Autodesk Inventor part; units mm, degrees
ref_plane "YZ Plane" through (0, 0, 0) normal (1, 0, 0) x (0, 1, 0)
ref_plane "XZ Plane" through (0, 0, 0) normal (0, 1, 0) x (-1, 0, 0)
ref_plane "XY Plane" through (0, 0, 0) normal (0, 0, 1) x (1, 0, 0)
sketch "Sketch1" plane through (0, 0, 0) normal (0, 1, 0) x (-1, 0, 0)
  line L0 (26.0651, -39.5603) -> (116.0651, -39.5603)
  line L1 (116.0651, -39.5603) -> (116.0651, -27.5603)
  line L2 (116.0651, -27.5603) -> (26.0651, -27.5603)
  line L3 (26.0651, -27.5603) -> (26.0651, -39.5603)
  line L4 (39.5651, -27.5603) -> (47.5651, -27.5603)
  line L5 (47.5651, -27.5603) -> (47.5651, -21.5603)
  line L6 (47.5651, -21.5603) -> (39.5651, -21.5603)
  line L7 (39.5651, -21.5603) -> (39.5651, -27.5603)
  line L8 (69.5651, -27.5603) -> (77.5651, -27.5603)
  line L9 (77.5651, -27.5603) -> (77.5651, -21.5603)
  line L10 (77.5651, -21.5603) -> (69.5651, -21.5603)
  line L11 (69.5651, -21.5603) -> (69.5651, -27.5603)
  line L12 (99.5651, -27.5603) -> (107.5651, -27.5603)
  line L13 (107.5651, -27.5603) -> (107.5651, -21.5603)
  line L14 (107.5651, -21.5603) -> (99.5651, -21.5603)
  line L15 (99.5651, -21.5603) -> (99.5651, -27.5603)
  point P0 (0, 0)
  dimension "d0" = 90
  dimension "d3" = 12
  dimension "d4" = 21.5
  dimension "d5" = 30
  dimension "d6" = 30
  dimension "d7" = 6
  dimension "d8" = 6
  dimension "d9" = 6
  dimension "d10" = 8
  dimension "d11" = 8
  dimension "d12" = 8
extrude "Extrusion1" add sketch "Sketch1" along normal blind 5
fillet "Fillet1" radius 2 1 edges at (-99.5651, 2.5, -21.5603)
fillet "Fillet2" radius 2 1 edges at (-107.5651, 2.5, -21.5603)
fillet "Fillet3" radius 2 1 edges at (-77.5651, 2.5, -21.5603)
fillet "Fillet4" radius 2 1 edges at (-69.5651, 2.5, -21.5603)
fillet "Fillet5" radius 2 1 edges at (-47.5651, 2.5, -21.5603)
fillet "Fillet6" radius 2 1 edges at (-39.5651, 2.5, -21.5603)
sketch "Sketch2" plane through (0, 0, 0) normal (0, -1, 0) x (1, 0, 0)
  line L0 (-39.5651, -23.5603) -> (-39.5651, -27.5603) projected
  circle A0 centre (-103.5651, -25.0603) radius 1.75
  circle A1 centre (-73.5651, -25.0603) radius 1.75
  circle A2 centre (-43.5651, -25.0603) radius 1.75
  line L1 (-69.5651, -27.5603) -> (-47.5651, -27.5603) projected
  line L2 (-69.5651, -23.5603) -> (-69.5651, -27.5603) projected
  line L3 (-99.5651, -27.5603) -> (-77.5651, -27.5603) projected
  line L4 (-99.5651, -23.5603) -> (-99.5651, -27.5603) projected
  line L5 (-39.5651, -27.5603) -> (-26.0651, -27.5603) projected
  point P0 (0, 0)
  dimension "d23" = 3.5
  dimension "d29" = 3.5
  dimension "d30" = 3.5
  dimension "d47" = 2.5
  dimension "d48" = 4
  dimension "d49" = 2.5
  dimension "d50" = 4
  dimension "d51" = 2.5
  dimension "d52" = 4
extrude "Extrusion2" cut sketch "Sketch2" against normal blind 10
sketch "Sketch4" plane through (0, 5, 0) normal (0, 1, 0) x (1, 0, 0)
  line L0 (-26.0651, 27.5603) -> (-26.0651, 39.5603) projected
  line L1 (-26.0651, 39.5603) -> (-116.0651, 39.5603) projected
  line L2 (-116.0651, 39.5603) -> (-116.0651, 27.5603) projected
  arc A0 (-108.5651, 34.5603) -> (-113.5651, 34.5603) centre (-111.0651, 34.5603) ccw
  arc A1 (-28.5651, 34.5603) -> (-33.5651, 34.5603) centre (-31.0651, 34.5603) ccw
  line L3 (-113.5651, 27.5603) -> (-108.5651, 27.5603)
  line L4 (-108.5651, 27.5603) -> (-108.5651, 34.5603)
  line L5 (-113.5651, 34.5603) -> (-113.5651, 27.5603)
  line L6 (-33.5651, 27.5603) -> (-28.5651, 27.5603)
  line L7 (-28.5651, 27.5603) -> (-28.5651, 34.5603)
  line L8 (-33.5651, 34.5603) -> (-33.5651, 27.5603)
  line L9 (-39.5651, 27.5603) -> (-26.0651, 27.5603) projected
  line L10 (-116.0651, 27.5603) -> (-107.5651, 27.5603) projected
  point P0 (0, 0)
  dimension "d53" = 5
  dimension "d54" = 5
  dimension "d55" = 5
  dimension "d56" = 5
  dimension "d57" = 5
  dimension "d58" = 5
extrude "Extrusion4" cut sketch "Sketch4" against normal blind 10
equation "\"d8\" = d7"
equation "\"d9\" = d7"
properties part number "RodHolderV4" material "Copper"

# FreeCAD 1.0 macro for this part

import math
import FreeCAD as App
import Part
import Sketcher


def edges_at(feature, points):
    """Names of the edges that pass closest to the given points."""
    edges = feature.Shape.Edges
    near = lambda p: min(range(len(edges)), key=lambda i: edges[i].distToShape(Part.Vertex(*p))[0])
    return sorted({f"Edge{near(p) + 1}" for p in points})

doc = App.newDocument("Part")
body = doc.addObject("PartDesign::Body", "Body")

sketch1 = body.newObject("Sketcher::SketchObject", "Sketch")
sketch1.AttachmentSupport = (doc.getObject("XZ_Plane"), [""])
sketch1.MapMode = "FlatFace"
sketch1.addGeometry([
    Part.LineSegment(App.Vector(-26.0651, -27.5603, 0), App.Vector(-26.0651, -39.5603, 0)),
    Part.LineSegment(App.Vector(-26.0651, -39.5603, 0), App.Vector(-116.0651, -39.5603, 0)),
    Part.LineSegment(App.Vector(-116.0651, -39.5603, 0), App.Vector(-116.0651, -27.5603, 0)),
    Part.LineSegment(App.Vector(-116.0651, -27.5603, 0), App.Vector(-107.5651, -27.5603, 0)),
    Part.LineSegment(App.Vector(-107.5651, -27.5603, 0), App.Vector(-107.5651, -21.5603, 0)),
    Part.LineSegment(App.Vector(-107.5651, -21.5603, 0), App.Vector(-99.5651, -21.5603, 0)),
    Part.LineSegment(App.Vector(-99.5651, -21.5603, 0), App.Vector(-99.5651, -27.5603, 0)),
    Part.LineSegment(App.Vector(-99.5651, -27.5603, 0), App.Vector(-77.5651, -27.5603, 0)),
    Part.LineSegment(App.Vector(-77.5651, -27.5603, 0), App.Vector(-77.5651, -21.5603, 0)),
    Part.LineSegment(App.Vector(-77.5651, -21.5603, 0), App.Vector(-69.5651, -21.5603, 0)),
    Part.LineSegment(App.Vector(-69.5651, -21.5603, 0), App.Vector(-69.5651, -27.5603, 0)),
    Part.LineSegment(App.Vector(-69.5651, -27.5603, 0), App.Vector(-47.5651, -27.5603, 0)),
    Part.LineSegment(App.Vector(-47.5651, -27.5603, 0), App.Vector(-47.5651, -21.5603, 0)),
    Part.LineSegment(App.Vector(-47.5651, -21.5603, 0), App.Vector(-39.5651, -21.5603, 0)),
    Part.LineSegment(App.Vector(-39.5651, -21.5603, 0), App.Vector(-39.5651, -27.5603, 0)),
    Part.LineSegment(App.Vector(-39.5651, -27.5603, 0), App.Vector(-26.0651, -27.5603, 0)),
], False)
sketch1.addConstraint([
    Sketcher.Constraint("Coincident", 0, 2, 1, 1),
    Sketcher.Constraint("Coincident", 1, 2, 2, 1),
    Sketcher.Constraint("Coincident", 2, 2, 3, 1),
    Sketcher.Constraint("Coincident", 3, 2, 4, 1),
    Sketcher.Constraint("Coincident", 4, 2, 5, 1),
    Sketcher.Constraint("Coincident", 5, 2, 6, 1),
    Sketcher.Constraint("Coincident", 6, 2, 7, 1),
    Sketcher.Constraint("Coincident", 7, 2, 8, 1),
    Sketcher.Constraint("Coincident", 8, 2, 9, 1),
    Sketcher.Constraint("Coincident", 9, 2, 10, 1),
    Sketcher.Constraint("Coincident", 10, 2, 11, 1),
    Sketcher.Constraint("Coincident", 11, 2, 12, 1),
    Sketcher.Constraint("Coincident", 12, 2, 13, 1),
    Sketcher.Constraint("Coincident", 13, 2, 14, 1),
    Sketcher.Constraint("Coincident", 14, 2, 15, 1),
    Sketcher.Constraint("Coincident", 15, 2, 0, 1),
    Sketcher.Constraint("Vertical", 0),
    Sketcher.Constraint("Horizontal", 1),
    Sketcher.Constraint("Vertical", 2),
    Sketcher.Constraint("Horizontal", 3),
    Sketcher.Constraint("Vertical", 4),
    Sketcher.Constraint("Horizontal", 5),
    Sketcher.Constraint("Vertical", 6),
    Sketcher.Constraint("Horizontal", 7),
    Sketcher.Constraint("Vertical", 8),
    Sketcher.Constraint("Horizontal", 9),
    Sketcher.Constraint("Vertical", 10),
    Sketcher.Constraint("Horizontal", 11),
    Sketcher.Constraint("Vertical", 12),
    Sketcher.Constraint("Horizontal", 13),
    Sketcher.Constraint("Vertical", 14),
    Sketcher.Constraint("Horizontal", 15),
    Sketcher.Constraint("Horizontal", 3, 2, 6, 2),
    Sketcher.Constraint("Horizontal", 5, 2, 8, 2),
    Sketcher.Constraint("Horizontal", 7, 2, 10, 2),
    Sketcher.Constraint("Horizontal", 9, 2, 12, 2),
    Sketcher.Constraint("Horizontal", 11, 2, 14, 2),
    Sketcher.Constraint("Equal", 5, 9),
    Sketcher.Constraint("Equal", 7, 11),
    Sketcher.Constraint("Equal", 9, 13),
    Sketcher.Constraint("DistanceX", 1, 2, 1, 1, 90.0),
    Sketcher.Constraint("DistanceX", 5, 1, 5, 2, 8.0),
    Sketcher.Constraint("DistanceY", 0, 2, 0, 1, 12.0),
    Sketcher.Constraint("DistanceY", 4, 1, 4, 2, 6.0),
    Sketcher.Constraint("DistanceX", 3, 2, 7, 2, 30.0),
    Sketcher.Constraint("DistanceX", 11, 2, 0, 2, 21.5),
    Sketcher.Constraint("DistanceX", 0, 2, -1, 1, 26.065),
    Sketcher.Constraint("DistanceY", 0, 2, -1, 1, 39.5603),
])
pad1 = body.newObject("PartDesign::Pad", "Pad")
pad1.Profile = sketch1
pad1.Length = 5
pad1.Reversed = True
doc.recompute()

fillet = body.newObject("PartDesign::Fillet", "Fillet")
fillet.Base = (pad1, edges_at(pad1, [(-99.565, 2.5, -21.56)]))
fillet.Radius = 2
doc.recompute()

fillet2 = body.newObject("PartDesign::Fillet", "Fillet001")
fillet2.Base = (fillet, edges_at(fillet, [(-107.565, 2.5, -21.56)]))
fillet2.Radius = 2
doc.recompute()

fillet3 = body.newObject("PartDesign::Fillet", "Fillet002")
fillet3.Base = (fillet2, edges_at(fillet2, [(-77.565, 2.5, -21.56)]))
fillet3.Radius = 2
doc.recompute()

fillet4 = body.newObject("PartDesign::Fillet", "Fillet003")
fillet4.Base = (fillet3, edges_at(fillet3, [(-69.565, 2.5, -21.56)]))
fillet4.Radius = 2
doc.recompute()

fillet5 = body.newObject("PartDesign::Fillet", "Fillet004")
fillet5.Base = (fillet4, edges_at(fillet4, [(-47.565, 2.5, -21.56)]))
fillet5.Radius = 2
doc.recompute()

fillet6 = body.newObject("PartDesign::Fillet", "Fillet005")
fillet6.Base = (fillet5, edges_at(fillet5, [(-39.565, 2.5, -21.56)]))
fillet6.Radius = 2

sketch2 = body.newObject("Sketcher::SketchObject", "Sketch001")
sketch2.AttachmentSupport = (doc.getObject("XZ_Plane"), [""])
sketch2.MapMode = "FlatFace"
sketch2.addGeometry([
    Part.Circle(App.Vector(-103.5651, -25.0603, 0), App.Vector(0, 0, 1), 1.75),
    Part.Circle(App.Vector(-73.5651, -25.0603, 0), App.Vector(0, 0, 1), 1.75),
    Part.Circle(App.Vector(-43.5651, -25.0603, 0), App.Vector(0, 0, 1), 1.75),
], False)
sketch2.addConstraint([
    Sketcher.Constraint("Equal", 0, 1),
    Sketcher.Constraint("Equal", 1, 2),
    Sketcher.Constraint("Horizontal", 0, 3, 1, 3),
    Sketcher.Constraint("Horizontal", 1, 3, 2, 3),
    Sketcher.Constraint("Diameter", 0, 3.5),
    Sketcher.Constraint("DistanceX", 0, 3, 1, 3, 30.0),
    Sketcher.Constraint("DistanceX", 1, 3, 2, 3, 30.0),
    Sketcher.Constraint("DistanceX", 0, 3, -1, 1, 103.565),
    Sketcher.Constraint("DistanceY", 0, 3, -1, 1, 25.0603),
])
pocket1 = body.newObject("PartDesign::Pocket", "Pocket")
pocket1.Profile = sketch2
pocket1.Length = 10

sketch3 = body.newObject("Sketcher::SketchObject", "Sketch002")
sketch3.AttachmentSupport = (doc.getObject("XZ_Plane"), [""])
sketch3.MapMode = "FlatFace"
sketch3.AttachmentOffset = App.Placement(App.Vector(0, 0, -5), App.Rotation())
sketch3.addGeometry([
    Part.LineSegment(App.Vector(-113.5651, -34.5603, 0), App.Vector(-113.5651, -27.5603, 0)),
    Part.LineSegment(App.Vector(-113.5651, -27.5603, 0), App.Vector(-108.5651, -27.5603, 0)),
    Part.LineSegment(App.Vector(-108.5651, -27.5603, 0), App.Vector(-108.5651, -34.5603, 0)),
    Part.ArcOfCircle(Part.Circle(App.Vector(-111.0651, -34.5603, 0), App.Vector(0, 0, 1), 2.5), math.radians(180), math.radians(360)),
    Part.LineSegment(App.Vector(-33.5651, -27.5603, 0), App.Vector(-28.5651, -27.5603, 0)),
    Part.LineSegment(App.Vector(-28.5651, -27.5603, 0), App.Vector(-28.5651, -34.5603, 0)),
    Part.ArcOfCircle(Part.Circle(App.Vector(-31.0651, -34.5603, 0), App.Vector(0, 0, 1), 2.5), math.radians(180), math.radians(360)),
    Part.LineSegment(App.Vector(-33.5651, -34.5603, 0), App.Vector(-33.5651, -27.5603, 0)),
], False)
sketch3.addConstraint([
    Sketcher.Constraint("Coincident", 0, 2, 1, 1),
    Sketcher.Constraint("Coincident", 1, 2, 2, 1),
    Sketcher.Constraint("Tangent", 2, 2, 3, 2),
    Sketcher.Constraint("Tangent", 3, 1, 0, 1),
    Sketcher.Constraint("Coincident", 4, 2, 5, 1),
    Sketcher.Constraint("Tangent", 5, 2, 6, 2),
    Sketcher.Constraint("Tangent", 6, 1, 7, 1),
    Sketcher.Constraint("Coincident", 7, 2, 4, 1),
    Sketcher.Constraint("Vertical", 0),
    Sketcher.Constraint("Horizontal", 1),
    Sketcher.Constraint("Vertical", 2),
    Sketcher.Constraint("Horizontal", 4),
    Sketcher.Constraint("Vertical", 5),
    Sketcher.Constraint("Vertical", 7),
    Sketcher.Constraint("Equal", 3, 6),
    Sketcher.Constraint("Horizontal", 3, 3, 6, 3),
    Sketcher.Constraint("Horizontal", 1, 2, 4, 2),
    Sketcher.Constraint("Radius", 3, 2.5),
    Sketcher.Constraint("DistanceY", 0, 1, 0, 2, 7.0),
    Sketcher.Constraint("DistanceX", 3, 3, 6, 3, 80.0),
    Sketcher.Constraint("DistanceX", 3, 3, -1, 1, 111.065),
    Sketcher.Constraint("DistanceY", 3, 3, -1, 1, 34.5603),
])
pocket2 = body.newObject("PartDesign::Pocket", "Pocket001")
pocket2.Profile = sketch3
pocket2.Length = 10
pocket2.Reversed = True

doc.recompute()
